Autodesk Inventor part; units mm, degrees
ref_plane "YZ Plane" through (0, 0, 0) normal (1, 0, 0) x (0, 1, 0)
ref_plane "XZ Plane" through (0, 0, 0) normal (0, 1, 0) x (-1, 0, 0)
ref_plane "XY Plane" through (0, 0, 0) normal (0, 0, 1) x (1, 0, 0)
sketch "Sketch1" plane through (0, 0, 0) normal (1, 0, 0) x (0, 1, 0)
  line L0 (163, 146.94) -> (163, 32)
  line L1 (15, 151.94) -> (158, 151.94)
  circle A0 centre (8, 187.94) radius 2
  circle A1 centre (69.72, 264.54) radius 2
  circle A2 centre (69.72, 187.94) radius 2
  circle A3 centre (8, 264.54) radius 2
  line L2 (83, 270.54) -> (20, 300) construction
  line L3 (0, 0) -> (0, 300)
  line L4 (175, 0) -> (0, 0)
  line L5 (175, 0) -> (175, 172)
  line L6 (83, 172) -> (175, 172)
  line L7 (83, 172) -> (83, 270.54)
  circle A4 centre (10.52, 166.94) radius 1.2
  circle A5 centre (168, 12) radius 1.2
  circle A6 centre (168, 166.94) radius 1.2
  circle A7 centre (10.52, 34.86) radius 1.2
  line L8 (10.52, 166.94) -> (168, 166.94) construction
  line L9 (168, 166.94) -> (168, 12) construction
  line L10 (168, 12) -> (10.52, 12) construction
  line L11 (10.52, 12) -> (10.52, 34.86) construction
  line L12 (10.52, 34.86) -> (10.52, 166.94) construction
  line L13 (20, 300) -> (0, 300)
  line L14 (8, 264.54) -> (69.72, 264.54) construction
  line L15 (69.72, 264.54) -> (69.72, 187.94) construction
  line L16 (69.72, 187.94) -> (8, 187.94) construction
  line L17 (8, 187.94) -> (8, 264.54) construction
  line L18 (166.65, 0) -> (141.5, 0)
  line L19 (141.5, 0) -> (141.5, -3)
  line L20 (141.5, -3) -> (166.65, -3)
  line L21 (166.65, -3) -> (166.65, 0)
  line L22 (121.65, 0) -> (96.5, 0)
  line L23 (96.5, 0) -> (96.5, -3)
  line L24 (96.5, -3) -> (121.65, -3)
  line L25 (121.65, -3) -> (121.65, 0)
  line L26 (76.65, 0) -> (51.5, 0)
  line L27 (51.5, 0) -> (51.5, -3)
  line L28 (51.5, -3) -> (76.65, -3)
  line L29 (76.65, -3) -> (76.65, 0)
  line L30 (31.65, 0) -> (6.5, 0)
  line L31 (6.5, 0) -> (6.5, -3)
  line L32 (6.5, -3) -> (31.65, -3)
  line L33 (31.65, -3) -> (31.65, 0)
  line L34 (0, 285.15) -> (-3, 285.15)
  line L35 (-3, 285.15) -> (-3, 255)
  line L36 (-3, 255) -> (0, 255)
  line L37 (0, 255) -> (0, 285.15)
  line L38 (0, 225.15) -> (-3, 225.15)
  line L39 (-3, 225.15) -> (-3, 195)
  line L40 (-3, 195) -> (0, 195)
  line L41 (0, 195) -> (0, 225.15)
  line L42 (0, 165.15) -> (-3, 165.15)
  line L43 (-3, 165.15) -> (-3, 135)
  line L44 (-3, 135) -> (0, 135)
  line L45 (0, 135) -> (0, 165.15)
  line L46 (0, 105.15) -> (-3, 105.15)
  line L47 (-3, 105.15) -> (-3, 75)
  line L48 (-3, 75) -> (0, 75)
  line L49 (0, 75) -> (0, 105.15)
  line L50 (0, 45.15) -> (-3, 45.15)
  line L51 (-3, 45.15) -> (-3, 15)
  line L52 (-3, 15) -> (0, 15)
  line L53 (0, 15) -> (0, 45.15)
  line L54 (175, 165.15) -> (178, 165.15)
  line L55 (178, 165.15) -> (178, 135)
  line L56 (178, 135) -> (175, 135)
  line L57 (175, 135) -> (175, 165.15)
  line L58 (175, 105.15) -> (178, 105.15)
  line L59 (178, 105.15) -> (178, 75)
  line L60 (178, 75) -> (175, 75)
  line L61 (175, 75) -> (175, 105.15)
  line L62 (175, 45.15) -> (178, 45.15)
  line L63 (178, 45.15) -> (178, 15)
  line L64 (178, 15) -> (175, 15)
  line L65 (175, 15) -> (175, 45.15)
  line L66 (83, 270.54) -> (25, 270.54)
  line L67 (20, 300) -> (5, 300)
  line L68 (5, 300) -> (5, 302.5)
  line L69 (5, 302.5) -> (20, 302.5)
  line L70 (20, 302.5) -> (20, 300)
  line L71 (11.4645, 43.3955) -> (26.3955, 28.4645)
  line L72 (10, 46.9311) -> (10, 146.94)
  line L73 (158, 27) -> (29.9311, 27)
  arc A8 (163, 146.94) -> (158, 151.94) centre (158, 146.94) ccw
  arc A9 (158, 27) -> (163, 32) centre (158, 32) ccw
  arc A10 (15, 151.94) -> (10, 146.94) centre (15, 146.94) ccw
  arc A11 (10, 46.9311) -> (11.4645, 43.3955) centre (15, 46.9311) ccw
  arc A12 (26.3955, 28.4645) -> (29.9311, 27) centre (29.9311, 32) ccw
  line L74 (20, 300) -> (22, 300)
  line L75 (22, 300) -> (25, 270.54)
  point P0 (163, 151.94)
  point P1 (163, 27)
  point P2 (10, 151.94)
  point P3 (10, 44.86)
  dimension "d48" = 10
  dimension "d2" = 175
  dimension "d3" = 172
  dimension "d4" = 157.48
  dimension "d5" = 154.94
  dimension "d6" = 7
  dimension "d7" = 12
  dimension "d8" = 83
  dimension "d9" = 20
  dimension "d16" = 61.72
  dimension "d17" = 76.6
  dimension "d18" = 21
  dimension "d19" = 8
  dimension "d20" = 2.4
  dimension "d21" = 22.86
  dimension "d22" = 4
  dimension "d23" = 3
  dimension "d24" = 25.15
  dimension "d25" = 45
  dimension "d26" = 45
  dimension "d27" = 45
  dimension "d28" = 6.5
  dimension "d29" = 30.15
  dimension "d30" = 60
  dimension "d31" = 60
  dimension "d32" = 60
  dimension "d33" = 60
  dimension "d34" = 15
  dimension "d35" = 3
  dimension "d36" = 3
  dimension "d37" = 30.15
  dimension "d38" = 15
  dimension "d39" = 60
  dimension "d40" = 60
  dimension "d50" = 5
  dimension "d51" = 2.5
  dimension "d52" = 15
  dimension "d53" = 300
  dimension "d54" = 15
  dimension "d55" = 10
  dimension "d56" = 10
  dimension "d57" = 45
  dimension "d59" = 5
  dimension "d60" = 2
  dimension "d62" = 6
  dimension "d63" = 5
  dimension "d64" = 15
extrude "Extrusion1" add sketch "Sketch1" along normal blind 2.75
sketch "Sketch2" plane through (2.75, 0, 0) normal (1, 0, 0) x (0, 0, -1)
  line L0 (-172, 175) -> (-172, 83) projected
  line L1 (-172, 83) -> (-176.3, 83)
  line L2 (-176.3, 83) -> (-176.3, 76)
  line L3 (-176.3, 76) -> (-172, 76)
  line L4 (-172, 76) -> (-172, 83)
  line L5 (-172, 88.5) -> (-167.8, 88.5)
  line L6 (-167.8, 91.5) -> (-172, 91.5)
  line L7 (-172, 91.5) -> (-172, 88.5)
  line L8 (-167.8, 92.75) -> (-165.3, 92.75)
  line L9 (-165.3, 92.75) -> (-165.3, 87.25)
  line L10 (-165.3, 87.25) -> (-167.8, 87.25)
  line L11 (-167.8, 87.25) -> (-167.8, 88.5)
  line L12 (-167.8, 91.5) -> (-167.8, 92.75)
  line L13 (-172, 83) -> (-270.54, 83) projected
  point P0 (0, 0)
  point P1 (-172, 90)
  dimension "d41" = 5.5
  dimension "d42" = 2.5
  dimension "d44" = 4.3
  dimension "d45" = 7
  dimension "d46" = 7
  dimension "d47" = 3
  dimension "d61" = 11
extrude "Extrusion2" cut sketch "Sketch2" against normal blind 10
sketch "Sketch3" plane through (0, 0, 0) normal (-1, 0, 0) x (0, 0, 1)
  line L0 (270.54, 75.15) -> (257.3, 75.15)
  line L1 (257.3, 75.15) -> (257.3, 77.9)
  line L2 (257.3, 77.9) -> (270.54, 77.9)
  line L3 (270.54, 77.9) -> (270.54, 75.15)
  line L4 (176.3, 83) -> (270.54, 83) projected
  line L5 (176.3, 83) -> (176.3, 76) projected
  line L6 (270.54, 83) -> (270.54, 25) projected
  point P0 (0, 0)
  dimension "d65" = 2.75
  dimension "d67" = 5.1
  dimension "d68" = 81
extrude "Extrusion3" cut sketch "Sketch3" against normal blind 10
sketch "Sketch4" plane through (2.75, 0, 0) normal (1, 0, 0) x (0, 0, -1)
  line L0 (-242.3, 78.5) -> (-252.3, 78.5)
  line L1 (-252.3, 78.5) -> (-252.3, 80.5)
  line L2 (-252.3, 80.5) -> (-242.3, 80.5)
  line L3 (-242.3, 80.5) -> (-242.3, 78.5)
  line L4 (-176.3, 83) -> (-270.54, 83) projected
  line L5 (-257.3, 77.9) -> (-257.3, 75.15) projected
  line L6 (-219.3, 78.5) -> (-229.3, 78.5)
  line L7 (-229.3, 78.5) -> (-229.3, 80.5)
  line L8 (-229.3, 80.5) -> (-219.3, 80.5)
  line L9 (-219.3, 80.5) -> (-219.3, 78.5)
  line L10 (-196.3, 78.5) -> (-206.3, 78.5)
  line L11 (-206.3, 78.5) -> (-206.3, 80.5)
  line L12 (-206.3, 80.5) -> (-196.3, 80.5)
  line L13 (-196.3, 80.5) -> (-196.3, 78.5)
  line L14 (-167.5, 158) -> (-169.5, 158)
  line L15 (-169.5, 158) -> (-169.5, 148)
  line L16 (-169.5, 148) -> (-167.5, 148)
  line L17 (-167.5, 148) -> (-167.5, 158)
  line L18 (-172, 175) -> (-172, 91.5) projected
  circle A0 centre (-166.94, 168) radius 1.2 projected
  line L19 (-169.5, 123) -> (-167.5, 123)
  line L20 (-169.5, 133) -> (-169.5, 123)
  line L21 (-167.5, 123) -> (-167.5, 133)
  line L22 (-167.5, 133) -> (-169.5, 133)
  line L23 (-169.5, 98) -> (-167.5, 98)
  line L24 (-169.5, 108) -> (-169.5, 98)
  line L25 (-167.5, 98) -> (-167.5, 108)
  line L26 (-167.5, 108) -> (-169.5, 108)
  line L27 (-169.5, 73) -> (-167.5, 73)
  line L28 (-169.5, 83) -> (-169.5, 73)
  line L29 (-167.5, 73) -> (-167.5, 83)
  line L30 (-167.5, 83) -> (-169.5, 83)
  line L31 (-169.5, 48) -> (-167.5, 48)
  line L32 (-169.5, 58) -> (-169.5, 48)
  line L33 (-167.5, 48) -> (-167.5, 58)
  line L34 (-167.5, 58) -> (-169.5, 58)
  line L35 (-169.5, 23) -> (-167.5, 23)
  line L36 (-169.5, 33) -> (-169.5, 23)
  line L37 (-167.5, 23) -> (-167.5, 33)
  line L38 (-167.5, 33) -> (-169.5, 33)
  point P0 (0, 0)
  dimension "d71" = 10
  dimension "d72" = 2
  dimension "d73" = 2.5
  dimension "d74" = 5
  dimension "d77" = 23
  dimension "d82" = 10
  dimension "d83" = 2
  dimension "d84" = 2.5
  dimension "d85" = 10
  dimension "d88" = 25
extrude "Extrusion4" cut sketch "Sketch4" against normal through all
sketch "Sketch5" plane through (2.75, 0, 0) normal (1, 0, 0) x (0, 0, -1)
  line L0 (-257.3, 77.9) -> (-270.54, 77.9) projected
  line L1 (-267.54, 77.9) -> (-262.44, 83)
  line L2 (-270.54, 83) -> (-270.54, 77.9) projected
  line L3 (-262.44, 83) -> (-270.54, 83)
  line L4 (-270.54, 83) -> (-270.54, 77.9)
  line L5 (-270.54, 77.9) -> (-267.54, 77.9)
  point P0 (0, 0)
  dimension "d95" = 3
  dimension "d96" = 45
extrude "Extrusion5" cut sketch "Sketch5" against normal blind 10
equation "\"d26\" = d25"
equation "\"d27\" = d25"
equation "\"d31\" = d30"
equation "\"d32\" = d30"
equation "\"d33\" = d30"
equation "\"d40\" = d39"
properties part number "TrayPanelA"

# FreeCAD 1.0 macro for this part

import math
import FreeCAD as App
import Part
import Sketcher
from FreeCAD import Vector
Q = App.Units.Quantity


def add_polygon(sketch, points):
    """Adds a closed chain of lines whose ends are joined by coincident constraints."""
    first, n = sketch.GeometryCount, len(points)
    for a, b in zip(points, points[1:] + points[:1]):
        sketch.addGeometry(Part.LineSegment(App.Vector(*a, 0), App.Vector(*b, 0)), False)
    for i in range(n):
        sketch.addConstraint(Sketcher.Constraint("Coincident", first + i, 2, first + (i + 1) % n, 1))

doc = App.newDocument("Part")
body = doc.addObject("PartDesign::Body", "Body")

sketch1 = body.newObject("Sketcher::SketchObject", "Sketch")
sketch1.AttachmentSupport = (doc.getObject("YZ_Plane"), [""])
sketch1.MapMode = "FlatFace"
add_polygon(sketch1, [(0, 15), (0, 0), (6.5, 0), (6.5, -3), (31.6, -3), (31.6, 0), (51.5, 0), (51.5, -3), (76.7, -3), (76.7, 0), (96.5, 0), (96.5, -3), (121.7, -3), (121.7, 0), (141.5, 0), (141.5, -3), (166.7, -3), (166.7, 0), (175, 0), (175, 15), (178, 15), (178, 45.1), (175, 45.1), (175, 75), (178, 75), (178, 105.2), (175, 105.2), (175, 135), (178, 135), (178, 165.2), (175, 165.2), (175, 172), (83, 172), (83, 270.5), (25, 270.5), (22, 300), (20, 300), (20, 302.5), (5, 302.5), (5, 300), (0, 300), (0, 285.1), (-3, 285.1), (-3, 255), (0, 255), (0, 225.2), (-3, 225.2), (-3, 195), (0, 195), (0, 165.2), (-3, 165.2), (-3, 135), (0, 135), (0, 105.2), (-3, 105.2), (-3, 75), (0, 75), (0, 45.1), (-3, 45.1), (-3, 15)])
sketch1.addGeometry(Part.Circle(Vector(10.5, 34.9, 0), Vector(0, 0, 1), 1.2), False)
sketch1.addGeometry(Part.ArcOfCircle(Part.Circle(Vector(158, 146.9, 0), Vector(0, 0, 1), 5), math.radians(0), math.radians(90)), False)
sketch1.addGeometry(Part.LineSegment(Vector(163, 146.9, 0), Vector(163, 32, 0)), False)
sketch1.addGeometry(Part.ArcOfCircle(Part.Circle(Vector(158, 32, 0), Vector(0, 0, 1), 5), math.radians(-90), math.radians(0)), False)
sketch1.addGeometry(Part.LineSegment(Vector(158, 27, 0), Vector(29.9, 27, 0)), False)
sketch1.addGeometry(Part.ArcOfCircle(Part.Circle(Vector(29.9, 32, 0), Vector(0, 0, 1), 5), math.radians(-135), math.radians(-90)), False)
sketch1.addGeometry(Part.LineSegment(Vector(26.4, 28.5, 0), Vector(11.5, 43.4, 0)), False)
sketch1.addGeometry(Part.ArcOfCircle(Part.Circle(Vector(15, 46.9, 0), Vector(0, 0, 1), 5), math.radians(180), math.radians(225)), False)
sketch1.addGeometry(Part.LineSegment(Vector(10, 46.9, 0), Vector(10, 146.9, 0)), False)
sketch1.addGeometry(Part.ArcOfCircle(Part.Circle(Vector(15, 146.9, 0), Vector(0, 0, 1), 5), math.radians(90), math.radians(180)), False)
sketch1.addGeometry(Part.LineSegment(Vector(15, 151.9, 0), Vector(158, 151.9, 0)), False)
sketch1.addGeometry(Part.Circle(Vector(168, 12, 0), Vector(0, 0, 1), 1.2), False)
sketch1.addGeometry(Part.Circle(Vector(10.5, 166.9, 0), Vector(0, 0, 1), 1.2), False)
sketch1.addGeometry(Part.Circle(Vector(8, 187.9, 0), Vector(0, 0, 1), 2), False)
sketch1.addGeometry(Part.Circle(Vector(69.7, 187.9, 0), Vector(0, 0, 1), 2), False)
sketch1.addGeometry(Part.Circle(Vector(8, 264.5, 0), Vector(0, 0, 1), 2), False)
sketch1.addGeometry(Part.Circle(Vector(69.7, 264.5, 0), Vector(0, 0, 1), 2), False)
sketch1.addGeometry(Part.Circle(Vector(168, 166.9, 0), Vector(0, 0, 1), 1.2), False)
sketch1.addConstraint(Sketcher.Constraint("Tangent", 61, 1, 62, 1))
sketch1.addConstraint(Sketcher.Constraint("Tangent", 62, 2, 63, 2))
sketch1.addConstraint(Sketcher.Constraint("Tangent", 63, 1, 64, 1))
sketch1.addConstraint(Sketcher.Constraint("Tangent", 64, 2, 65, 2))
sketch1.addConstraint(Sketcher.Constraint("Tangent", 65, 1, 66, 1))
sketch1.addConstraint(Sketcher.Constraint("Tangent", 66, 2, 67, 2))
sketch1.addConstraint(Sketcher.Constraint("Tangent", 67, 1, 68, 1))
sketch1.addConstraint(Sketcher.Constraint("Tangent", 68, 2, 69, 2))
sketch1.addConstraint(Sketcher.Constraint("Tangent", 69, 1, 70, 1))
sketch1.addConstraint(Sketcher.Constraint("Tangent", 70, 2, 61, 2))
sketch1.addConstraint(Sketcher.Constraint("Vertical", 0))
sketch1.addConstraint(Sketcher.Constraint("Horizontal", 1))
sketch1.addConstraint(Sketcher.Constraint("Vertical", 2))
sketch1.addConstraint(Sketcher.Constraint("Horizontal", 3))
sketch1.addConstraint(Sketcher.Constraint("Vertical", 4))
sketch1.addConstraint(Sketcher.Constraint("Horizontal", 5))
sketch1.addConstraint(Sketcher.Constraint("Vertical", 6))
sketch1.addConstraint(Sketcher.Constraint("Horizontal", 7))
sketch1.addConstraint(Sketcher.Constraint("Vertical", 8))
sketch1.addConstraint(Sketcher.Constraint("Horizontal", 9))
sketch1.addConstraint(Sketcher.Constraint("Vertical", 10))
sketch1.addConstraint(Sketcher.Constraint("Horizontal", 11))
sketch1.addConstraint(Sketcher.Constraint("Vertical", 12))
sketch1.addConstraint(Sketcher.Constraint("Horizontal", 13))
sketch1.addConstraint(Sketcher.Constraint("Vertical", 14))
sketch1.addConstraint(Sketcher.Constraint("Horizontal", 15))
sketch1.addConstraint(Sketcher.Constraint("Vertical", 16))
sketch1.addConstraint(Sketcher.Constraint("Horizontal", 17))
sketch1.addConstraint(Sketcher.Constraint("Vertical", 18))
sketch1.addConstraint(Sketcher.Constraint("Horizontal", 19))
sketch1.addConstraint(Sketcher.Constraint("Vertical", 20))
sketch1.addConstraint(Sketcher.Constraint("Horizontal", 21))
sketch1.addConstraint(Sketcher.Constraint("Vertical", 22))
sketch1.addConstraint(Sketcher.Constraint("Horizontal", 23))
sketch1.addConstraint(Sketcher.Constraint("Vertical", 24))
sketch1.addConstraint(Sketcher.Constraint("Horizontal", 25))
sketch1.addConstraint(Sketcher.Constraint("Vertical", 26))
sketch1.addConstraint(Sketcher.Constraint("Horizontal", 27))
sketch1.addConstraint(Sketcher.Constraint("Vertical", 28))
sketch1.addConstraint(Sketcher.Constraint("Horizontal", 29))
sketch1.addConstraint(Sketcher.Constraint("Vertical", 30))
sketch1.addConstraint(Sketcher.Constraint("Horizontal", 31))
sketch1.addConstraint(Sketcher.Constraint("Vertical", 32))
sketch1.addConstraint(Sketcher.Constraint("Horizontal", 33))
sketch1.addConstraint(Sketcher.Constraint("Horizontal", 35))
sketch1.addConstraint(Sketcher.Constraint("Vertical", 36))
sketch1.addConstraint(Sketcher.Constraint("Horizontal", 37))
sketch1.addConstraint(Sketcher.Constraint("Vertical", 38))
sketch1.addConstraint(Sketcher.Constraint("Horizontal", 39))
sketch1.addConstraint(Sketcher.Constraint("Vertical", 40))
sketch1.addConstraint(Sketcher.Constraint("Horizontal", 41))
sketch1.addConstraint(Sketcher.Constraint("Vertical", 42))
sketch1.addConstraint(Sketcher.Constraint("Horizontal", 43))
sketch1.addConstraint(Sketcher.Constraint("Vertical", 44))
sketch1.addConstraint(Sketcher.Constraint("Horizontal", 45))
sketch1.addConstraint(Sketcher.Constraint("Vertical", 46))
sketch1.addConstraint(Sketcher.Constraint("Horizontal", 47))
sketch1.addConstraint(Sketcher.Constraint("Vertical", 48))
sketch1.addConstraint(Sketcher.Constraint("Horizontal", 49))
sketch1.addConstraint(Sketcher.Constraint("Vertical", 50))
sketch1.addConstraint(Sketcher.Constraint("Horizontal", 51))
sketch1.addConstraint(Sketcher.Constraint("Vertical", 52))
sketch1.addConstraint(Sketcher.Constraint("Horizontal", 53))
sketch1.addConstraint(Sketcher.Constraint("Vertical", 54))
sketch1.addConstraint(Sketcher.Constraint("Horizontal", 55))
sketch1.addConstraint(Sketcher.Constraint("Vertical", 56))
sketch1.addConstraint(Sketcher.Constraint("Horizontal", 57))
sketch1.addConstraint(Sketcher.Constraint("Vertical", 58))
sketch1.addConstraint(Sketcher.Constraint("Horizontal", 59))
sketch1.addConstraint(Sketcher.Constraint("Vertical", 62))
sketch1.addConstraint(Sketcher.Constraint("Horizontal", 64))
sketch1.addConstraint(Sketcher.Constraint("Vertical", 68))
sketch1.addConstraint(Sketcher.Constraint("Horizontal", 70))
sketch1.addConstraint(Sketcher.Constraint("Coincident", 0, 2, -1, 1))
sketch1.addConstraint(Sketcher.Constraint("Equal", 61, 63))
sketch1.addConstraint(Sketcher.Constraint("Equal", 63, 65))
sketch1.addConstraint(Sketcher.Constraint("Equal", 65, 67))
sketch1.addConstraint(Sketcher.Constraint("Equal", 67, 69))
sketch1.addConstraint(Sketcher.Constraint("Equal", 60, 71))
sketch1.addConstraint(Sketcher.Constraint("Equal", 71, 72))
sketch1.addConstraint(Sketcher.Constraint("Equal", 73, 74))
sketch1.addConstraint(Sketcher.Constraint("Equal", 74, 75))
sketch1.addConstraint(Sketcher.Constraint("Equal", 75, 76))
sketch1.addConstraint(Sketcher.Constraint("Equal", 72, 77))
sketch1.addConstraint(Sketcher.Constraint("PointOnObject", 4, 2, -1))
sketch1.addConstraint(Sketcher.Constraint("PointOnObject", 8, 2, -1))
sketch1.addConstraint(Sketcher.Constraint("PointOnObject", 12, 2, -1))
sketch1.addConstraint(Sketcher.Constraint("PointOnObject", 16, 2, -1))
sketch1.addConstraint(Sketcher.Constraint("PointOnObject", 39, 2, -2))
sketch1.addConstraint(Sketcher.Constraint("PointOnObject", 43, 2, -2))
sketch1.addConstraint(Sketcher.Constraint("PointOnObject", 47, 2, -2))
sketch1.addConstraint(Sketcher.Constraint("PointOnObject", 51, 2, -2))
sketch1.addConstraint(Sketcher.Constraint("PointOnObject", 55, 2, -2))
sketch1.addConstraint(Sketcher.Constraint("Horizontal", 73, 3, 74, 3))
sketch1.addConstraint(Sketcher.Constraint("Horizontal", 75, 3, 76, 3))
sketch1.addConstraint(Sketcher.Constraint("Horizontal", 72, 3, 77, 3))
sketch1.addConstraint(Sketcher.Constraint("Horizontal", 3, 2, 6, 2))
sketch1.addConstraint(Sketcher.Constraint("Horizontal", 7, 2, 10, 2))
sketch1.addConstraint(Sketcher.Constraint("Horizontal", 11, 2, 14, 2))
sketch1.addConstraint(Sketcher.Constraint("Horizontal", 35, 2, 38, 2))
sketch1.addConstraint(Sketcher.Constraint("Horizontal", 29, 2, 48, 2))
sketch1.addConstraint(Sketcher.Constraint("Horizontal", 27, 2, 50, 2))
sketch1.addConstraint(Sketcher.Constraint("Horizontal", 25, 2, 52, 2))
sketch1.addConstraint(Sketcher.Constraint("Horizontal", 23, 2, 54, 2))
sketch1.addConstraint(Sketcher.Constraint("Horizontal", 21, 2, 56, 2))
sketch1.addConstraint(Sketcher.Constraint("Horizontal", 19, 2, 58, 2))
sketch1.addConstraint(Sketcher.Constraint("Vertical", 60, 3, 72, 3))
sketch1.addConstraint(Sketcher.Constraint("Vertical", 73, 3, 75, 3))
sketch1.addConstraint(Sketcher.Constraint("Vertical", 74, 3, 76, 3))
sketch1.addConstraint(Sketcher.Constraint("Vertical", 71, 3, 77, 3))
sketch1.addConstraint(Sketcher.Constraint("Vertical", 18, 2, 21, 2))
sketch1.addConstraint(Sketcher.Constraint("Vertical", 20, 2, 23, 2))
sketch1.addConstraint(Sketcher.Constraint("Vertical", 22, 2, 25, 2))
sketch1.addConstraint(Sketcher.Constraint("Vertical", 24, 2, 27, 2))
sketch1.addConstraint(Sketcher.Constraint("Vertical", 26, 2, 29, 2))
sketch1.addConstraint(Sketcher.Constraint("Vertical", 42, 2, 45, 2))
sketch1.addConstraint(Sketcher.Constraint("Vertical", 46, 2, 49, 2))
sketch1.addConstraint(Sketcher.Constraint("Vertical", 50, 2, 53, 2))
sketch1.addConstraint(Sketcher.Constraint("Vertical", 54, 2, 57, 2))
sketch1.addConstraint(Sketcher.Constraint("Equal", 3, 7))
sketch1.addConstraint(Sketcher.Constraint("Equal", 5, 9))
sketch1.addConstraint(Sketcher.Constraint("Equal", 7, 11))
sketch1.addConstraint(Sketcher.Constraint("Equal", 9, 13))
sketch1.addConstraint(Sketcher.Constraint("Equal", 11, 15))
sketch1.addConstraint(Sketcher.Constraint("Equal", 29, 41))
sketch1.addConstraint(Sketcher.Constraint("Equal", 37, 0))
sketch1.addConstraint(Sketcher.Constraint("Equal", 59, 2))
sketch1.addConstraint(Sketcher.Constraint("Equal", 20, 24))
sketch1.addConstraint(Sketcher.Constraint("Equal", 22, 26))
sketch1.addConstraint(Sketcher.Constraint("Equal", 24, 28))
sketch1.addConstraint(Sketcher.Constraint("Equal", 28, 42))
sketch1.addConstraint(Sketcher.Constraint("Equal", 26, 44))
sketch1.addConstraint(Sketcher.Constraint("Equal", 42, 46))
sketch1.addConstraint(Sketcher.Constraint("Equal", 44, 48))
sketch1.addConstraint(Sketcher.Constraint("Diameter", 73, Q("4 mm")))
sketch1.addConstraint(Sketcher.Constraint("Radius", 61, Q("5 mm")))
sketch1.addConstraint(Sketcher.Constraint("Diameter", 60, Q("2.4 mm")))
sketch1.addConstraint(Sketcher.Constraint("DistanceX", 19, 1, 19, 2, Q("3 mm")))
sketch1.addConstraint(Sketcher.Constraint("DistanceX", 35, 2, 35, 1, Q("2 mm")))
sketch1.addConstraint(Sketcher.Constraint("DistanceX", 37, 2, 37, 1, Q("15 mm")))
sketch1.addConstraint(Sketcher.Constraint("DistanceX", 39, 2, 39, 1, Q("5 mm")))
sketch1.addConstraint(Sketcher.Constraint("DistanceX", 1, 1, 1, 2, Q("6.5 mm")))
sketch1.addConstraint(Sketcher.Constraint("DistanceY", 36, 1, 36, 2, Q("2.5 mm")))
sketch1.addConstraint(Sketcher.Constraint("DistanceX", -1, 1, 67, 3, Q("15 mm")))
sketch1.addConstraint(Sketcher.Constraint("DistanceY", -1, 1, 71, 3, Q("12 mm")))
sketch1.addConstraint(Sketcher.Constraint("DistanceX", -1, 1, 73, 3, Q("8 mm")))
sketch1.addConstraint(Sketcher.Constraint("DistanceX", -1, 1, 17, 2, Q("175 mm")))
sketch1.addConstraint(Sketcher.Constraint("DistanceY", -1, 1, 30, 2, Q("172 mm")))
sketch1.addConstraint(Sketcher.Constraint("DistanceX", -1, 1, 31, 2, Q("83 mm")))
sketch1.addConstraint(Sketcher.Constraint("DistanceY", -1, 1, 34, 2, Q("300 mm")))
sketch1.addConstraint(Sketcher.Constraint("DistanceX", 3, 1, 3, 2, Q("25.15 mm")))
sketch1.addConstraint(Sketcher.Constraint("DistanceY", 20, 1, 20, 2, Q("30.15 mm")))
sketch1.addConstraint(Sketcher.Constraint("DistanceX", 33, 2, 33, 1, Q("58 mm")))
sketch1.addConstraint(Sketcher.Constraint("DistanceX", 70, 1, 70, 2, Q("143 mm")))
sketch1.addConstraint(Sketcher.Constraint("Angle", 66, Q("135 deg")))
sketch1.addConstraint(Sketcher.Constraint("DistanceY", -1, 1, 63, 3, Q("32 mm")))
sketch1.addConstraint(Sketcher.Constraint("DistanceX", -1, 1, 71, 3, Q("168 mm")))
sketch1.addConstraint(Sketcher.Constraint("DistanceY", -1, 1, 22, 2, Q("75 mm")))
sketch1.addConstraint(Sketcher.Constraint("DistanceX", 5, 1, 5, 2, Q("19.85 mm")))
sketch1.addConstraint(Sketcher.Constraint("DistanceY", 32, 1, 32, 2, Q("98.54 mm")))
sketch1.addConstraint(Sketcher.Constraint("DistanceY", 62, 2, 62, 1, Q("114.94 mm")))
sketch1.addConstraint(Sketcher.Constraint("DistanceX", 64, 2, 64, 1, Q("128.069 mm")))
sketch1.addConstraint(Sketcher.Constraint("DistanceX", -1, 1, 60, 3, Q("10.52 mm")))
sketch1.addConstraint(Sketcher.Constraint("DistanceY", -1, 1, 60, 3, Q("34.86 mm")))
sketch1.addConstraint(Sketcher.Constraint("DistanceY", -1, 1, 72, 3, Q("166.94 mm")))
sketch1.addConstraint(Sketcher.Constraint("DistanceY", -1, 1, 73, 3, Q("187.94 mm")))
sketch1.addConstraint(Sketcher.Constraint("DistanceX", -1, 1, 74, 3, Q("69.72 mm")))
sketch1.addConstraint(Sketcher.Constraint("DistanceY", -1, 1, 75, 3, Q("264.54 mm")))
pad1 = body.newObject("PartDesign::Pad", "Pad")
pad1.Profile = sketch1
pad1.Length = 2.75

sketch2 = body.newObject("Sketcher::SketchObject", "Sketch001")
sketch2.AttachmentSupport = (doc.getObject("YZ_Plane"), [""])
sketch2.MapMode = "FlatFace"
sketch2.AttachmentOffset = App.Placement(Vector(0, 0, 2.75), App.Rotation())
add_polygon(sketch2, [(91.5, 167.8), (91.5, 172), (88.5, 172), (88.5, 167.8), (87.2, 167.8), (87.2, 165.3), (92.8, 165.3), (92.8, 167.8)])
add_polygon(sketch2, [(76, 172), (83, 172), (83, 176.3), (76, 176.3)])
sketch2.addConstraint(Sketcher.Constraint("Vertical", 0))
sketch2.addConstraint(Sketcher.Constraint("Horizontal", 1))
sketch2.addConstraint(Sketcher.Constraint("Vertical", 2))
sketch2.addConstraint(Sketcher.Constraint("Horizontal", 3))
sketch2.addConstraint(Sketcher.Constraint("Vertical", 4))
sketch2.addConstraint(Sketcher.Constraint("Horizontal", 5))
sketch2.addConstraint(Sketcher.Constraint("Vertical", 6))
sketch2.addConstraint(Sketcher.Constraint("Horizontal", 7))
sketch2.addConstraint(Sketcher.Constraint("Horizontal", 8))
sketch2.addConstraint(Sketcher.Constraint("Vertical", 9))
sketch2.addConstraint(Sketcher.Constraint("Horizontal", 10))
sketch2.addConstraint(Sketcher.Constraint("Vertical", 11))
sketch2.addConstraint(Sketcher.Constraint("Horizontal", 3, 2, 6, 2))
sketch2.addConstraint(Sketcher.Constraint("Horizontal", 1, 2, 8, 2))
sketch2.addConstraint(Sketcher.Constraint("Equal", 3, 7))
sketch2.addConstraint(Sketcher.Constraint("DistanceX", 1, 2, 1, 1, Q("3 mm")))
sketch2.addConstraint(Sketcher.Constraint("DistanceX", 8, 1, 8, 2, Q("7 mm")))
sketch2.addConstraint(Sketcher.Constraint("DistanceX", 5, 1, 5, 2, Q("5.5 mm")))
sketch2.addConstraint(Sketcher.Constraint("DistanceY", 4, 2, 4, 1, Q("2.5 mm")))
sketch2.addConstraint(Sketcher.Constraint("DistanceY", 9, 1, 9, 2, Q("4.3 mm")))
sketch2.addConstraint(Sketcher.Constraint("DistanceX", 8, 2, 1, 2, Q("5.5 mm")))
sketch2.addConstraint(Sketcher.Constraint("DistanceY", 0, 1, 0, 2, Q("4.2 mm")))
sketch2.addConstraint(Sketcher.Constraint("DistanceY", -1, 1, 0, 2, Q("172 mm")))
sketch2.addConstraint(Sketcher.Constraint("DistanceX", -1, 1, 8, 2, Q("83 mm")))
pocket1 = body.newObject("PartDesign::Pocket", "Pocket")
pocket1.Profile = sketch2
pocket1.Length = 10

sketch3 = body.newObject("Sketcher::SketchObject", "Sketch002")
sketch3.AttachmentSupport = (doc.getObject("YZ_Plane"), [""])
sketch3.MapMode = "FlatFace"
add_polygon(sketch3, [(75.2, 257.3), (75.2, 270.5), (77.9, 270.5), (77.9, 257.3)])
sketch3.addConstraint(Sketcher.Constraint("Vertical", 0))
sketch3.addConstraint(Sketcher.Constraint("Horizontal", 1))
sketch3.addConstraint(Sketcher.Constraint("Vertical", 2))
sketch3.addConstraint(Sketcher.Constraint("Horizontal", 3))
sketch3.addConstraint(Sketcher.Constraint("DistanceX", 1, 1, 1, 2, Q("2.75 mm")))
sketch3.addConstraint(Sketcher.Constraint("DistanceY", 0, 1, 0, 2, Q("13.24 mm")))
sketch3.addConstraint(Sketcher.Constraint("DistanceX", -1, 1, 1, 2, Q("77.9 mm")))
sketch3.addConstraint(Sketcher.Constraint("DistanceY", -1, 1, 2, 2, Q("257.3 mm")))
pocket2 = body.newObject("PartDesign::Pocket", "Pocket001")
pocket2.Profile = sketch3
pocket2.Length = 10
pocket2.Reversed = True

sketch4 = body.newObject("Sketcher::SketchObject", "Sketch003")
sketch4.AttachmentSupport = (doc.getObject("YZ_Plane"), [""])
sketch4.MapMode = "FlatFace"
sketch4.AttachmentOffset = App.Placement(Vector(0, 0, 2.75), App.Rotation())
add_polygon(sketch4, [(78.5, 252.3), (78.5, 242.3), (80.5, 242.3), (80.5, 252.3)])
add_polygon(sketch4, [(78.5, 229.3), (78.5, 219.3), (80.5, 219.3), (80.5, 229.3)])
add_polygon(sketch4, [(78.5, 206.3), (78.5, 196.3), (80.5, 196.3), (80.5, 206.3)])
add_polygon(sketch4, [(148, 167.5), (158, 167.5), (158, 169.5), (148, 169.5)])
sketch4.addGeometry(Part.Circle(Vector(168, 166.9, 0), Vector(0, 0, 1), 1.2), False)
add_polygon(sketch4, [(133, 169.5), (123, 169.5), (123, 167.5), (133, 167.5)])
add_polygon(sketch4, [(108, 169.5), (98, 169.5), (98, 167.5), (108, 167.5)])
add_polygon(sketch4, [(83, 169.5), (73, 169.5), (73, 167.5), (83, 167.5)])
add_polygon(sketch4, [(58, 169.5), (48, 169.5), (48, 167.5), (58, 167.5)])
add_polygon(sketch4, [(33, 169.5), (23, 169.5), (23, 167.5), (33, 167.5)])
sketch4.addConstraint(Sketcher.Constraint("Vertical", 0))
sketch4.addConstraint(Sketcher.Constraint("Horizontal", 1))
sketch4.addConstraint(Sketcher.Constraint("Vertical", 2))
sketch4.addConstraint(Sketcher.Constraint("Horizontal", 3))
sketch4.addConstraint(Sketcher.Constraint("Vertical", 4))
sketch4.addConstraint(Sketcher.Constraint("Horizontal", 5))
sketch4.addConstraint(Sketcher.Constraint("Vertical", 6))
sketch4.addConstraint(Sketcher.Constraint("Horizontal", 7))
sketch4.addConstraint(Sketcher.Constraint("Vertical", 8))
sketch4.addConstraint(Sketcher.Constraint("Horizontal", 9))
sketch4.addConstraint(Sketcher.Constraint("Vertical", 10))
sketch4.addConstraint(Sketcher.Constraint("Horizontal", 11))
sketch4.addConstraint(Sketcher.Constraint("Horizontal", 12))
sketch4.addConstraint(Sketcher.Constraint("Vertical", 13))
sketch4.addConstraint(Sketcher.Constraint("Horizontal", 14))
sketch4.addConstraint(Sketcher.Constraint("Vertical", 15))
sketch4.addConstraint(Sketcher.Constraint("Horizontal", 17))
sketch4.addConstraint(Sketcher.Constraint("Vertical", 18))
sketch4.addConstraint(Sketcher.Constraint("Horizontal", 19))
sketch4.addConstraint(Sketcher.Constraint("Vertical", 20))
sketch4.addConstraint(Sketcher.Constraint("Horizontal", 21))
sketch4.addConstraint(Sketcher.Constraint("Vertical", 22))
sketch4.addConstraint(Sketcher.Constraint("Horizontal", 23))
sketch4.addConstraint(Sketcher.Constraint("Vertical", 24))
sketch4.addConstraint(Sketcher.Constraint("Horizontal", 25))
sketch4.addConstraint(Sketcher.Constraint("Vertical", 26))
sketch4.addConstraint(Sketcher.Constraint("Horizontal", 27))
sketch4.addConstraint(Sketcher.Constraint("Vertical", 28))
sketch4.addConstraint(Sketcher.Constraint("Horizontal", 29))
sketch4.addConstraint(Sketcher.Constraint("Vertical", 30))
sketch4.addConstraint(Sketcher.Constraint("Horizontal", 31))
sketch4.addConstraint(Sketcher.Constraint("Vertical", 32))
sketch4.addConstraint(Sketcher.Constraint("Horizontal", 33))
sketch4.addConstraint(Sketcher.Constraint("Vertical", 34))
sketch4.addConstraint(Sketcher.Constraint("Horizontal", 35))
sketch4.addConstraint(Sketcher.Constraint("Vertical", 36))
sketch4.addConstraint(Sketcher.Constraint("Horizontal", 14, 2, 17, 2))
sketch4.addConstraint(Sketcher.Constraint("Horizontal", 15, 2, 18, 2))
sketch4.addConstraint(Sketcher.Constraint("Horizontal", 20, 2, 21, 2))
sketch4.addConstraint(Sketcher.Constraint("Horizontal", 19, 2, 22, 2))
sketch4.addConstraint(Sketcher.Constraint("Horizontal", 24, 2, 25, 2))
sketch4.addConstraint(Sketcher.Constraint("Horizontal", 23, 2, 26, 2))
sketch4.addConstraint(Sketcher.Constraint("Horizontal", 28, 2, 29, 2))
sketch4.addConstraint(Sketcher.Constraint("Horizontal", 27, 2, 30, 2))
sketch4.addConstraint(Sketcher.Constraint("Horizontal", 32, 2, 33, 2))
sketch4.addConstraint(Sketcher.Constraint("Horizontal", 31, 2, 34, 2))
sketch4.addConstraint(Sketcher.Constraint("Vertical", 3, 2, 4, 2))
sketch4.addConstraint(Sketcher.Constraint("Vertical", 2, 2, 5, 2))
sketch4.addConstraint(Sketcher.Constraint("Vertical", 7, 2, 8, 2))
sketch4.addConstraint(Sketcher.Constraint("Vertical", 6, 2, 9, 2))
sketch4.addConstraint(Sketcher.Constraint("Equal", 14, 17))
sketch4.addConstraint(Sketcher.Constraint("Equal", 19, 21))
sketch4.addConstraint(Sketcher.Constraint("Equal", 23, 25))
sketch4.addConstraint(Sketcher.Constraint("Equal", 27, 29))
sketch4.addConstraint(Sketcher.Constraint("Equal", 31, 33))
sketch4.addConstraint(Sketcher.Constraint("Equal", 35, 0))
sketch4.addConstraint(Sketcher.Constraint("Equal", 2, 4))
sketch4.addConstraint(Sketcher.Constraint("Equal", 6, 8))
sketch4.addConstraint(Sketcher.Constraint("Equal", 11, 13))
sketch4.addConstraint(Sketcher.Constraint("DistanceX", 1, 1, 1, 2, Q("2 mm")))
sketch4.addConstraint(Sketcher.Constraint("DistanceX", 12, 1, 12, 2, Q("10 mm")))
sketch4.addConstraint(Sketcher.Constraint("DistanceX", -1, 1, 33, 2, Q("23 mm")))
sketch4.addConstraint(Sketcher.Constraint("DistanceY", 4, 2, 0, 2, Q("23 mm")))
sketch4.addConstraint(Sketcher.Constraint("DistanceY", 8, 2, 4, 2, Q("23 mm")))
sketch4.addConstraint(Sketcher.Constraint("DistanceX", 12, 2, 16, 3, Q("10 mm")))
sketch4.addConstraint(Sketcher.Constraint("DistanceX", 17, 2, 14, 2, Q("25 mm")))
sketch4.addConstraint(Sketcher.Constraint("DistanceX", 21, 2, 17, 2, Q("25 mm")))
sketch4.addConstraint(Sketcher.Constraint("DistanceX", 25, 2, 21, 2, Q("25 mm")))
sketch4.addConstraint(Sketcher.Constraint("DistanceX", 29, 2, 25, 2, Q("25 mm")))
sketch4.addConstraint(Sketcher.Constraint("DistanceX", 33, 2, 29, 2, Q("25 mm")))
sketch4.addConstraint(Sketcher.Constraint("Diameter", 16, Q("2.4 mm")))
sketch4.addConstraint(Sketcher.Constraint("DistanceX", -1, 1, 0, 2, Q("78.5 mm")))
sketch4.addConstraint(Sketcher.Constraint("DistanceY", -1, 1, 0, 2, Q("242.3 mm")))
sketch4.addConstraint(Sketcher.Constraint("DistanceY", -1, 1, 12, 2, Q("167.5 mm")))
sketch4.addConstraint(Sketcher.Constraint("DistanceY", -1, 1, 16, 3, Q("166.94 mm")))
pocket3 = body.newObject("PartDesign::Pocket", "Pocket002")
pocket3.Profile = sketch4
pocket3.Type = "ThroughAll"

sketch5 = body.newObject("Sketcher::SketchObject", "Sketch004")
sketch5.AttachmentSupport = (doc.getObject("YZ_Plane"), [""])
sketch5.MapMode = "FlatFace"
sketch5.AttachmentOffset = App.Placement(Vector(0, 0, 2.75), App.Rotation())
add_polygon(sketch5, [(77.9, 270.5), (77.9, 267.5), (83, 262.4), (83, 270.5)])
sketch5.addConstraint(Sketcher.Constraint("Vertical", 0))
sketch5.addConstraint(Sketcher.Constraint("Vertical", 2))
sketch5.addConstraint(Sketcher.Constraint("Horizontal", 3))
sketch5.addConstraint(Sketcher.Constraint("DistanceY", 0, 2, 0, 1, Q("3 mm")))
sketch5.addConstraint(Sketcher.Constraint("Angle", 1, Q("-45 deg")))
sketch5.addConstraint(Sketcher.Constraint("DistanceX", 3, 2, 3, 1, Q("5.1 mm")))
sketch5.addConstraint(Sketcher.Constraint("DistanceX", -1, 1, 1, 2, Q("83 mm")))
sketch5.addConstraint(Sketcher.Constraint("DistanceY", -1, 1, 0, 2, Q("267.54 mm")))
pocket4 = body.newObject("PartDesign::Pocket", "Pocket003")
pocket4.Profile = sketch5
pocket4.Length = 10

doc.recompute()
